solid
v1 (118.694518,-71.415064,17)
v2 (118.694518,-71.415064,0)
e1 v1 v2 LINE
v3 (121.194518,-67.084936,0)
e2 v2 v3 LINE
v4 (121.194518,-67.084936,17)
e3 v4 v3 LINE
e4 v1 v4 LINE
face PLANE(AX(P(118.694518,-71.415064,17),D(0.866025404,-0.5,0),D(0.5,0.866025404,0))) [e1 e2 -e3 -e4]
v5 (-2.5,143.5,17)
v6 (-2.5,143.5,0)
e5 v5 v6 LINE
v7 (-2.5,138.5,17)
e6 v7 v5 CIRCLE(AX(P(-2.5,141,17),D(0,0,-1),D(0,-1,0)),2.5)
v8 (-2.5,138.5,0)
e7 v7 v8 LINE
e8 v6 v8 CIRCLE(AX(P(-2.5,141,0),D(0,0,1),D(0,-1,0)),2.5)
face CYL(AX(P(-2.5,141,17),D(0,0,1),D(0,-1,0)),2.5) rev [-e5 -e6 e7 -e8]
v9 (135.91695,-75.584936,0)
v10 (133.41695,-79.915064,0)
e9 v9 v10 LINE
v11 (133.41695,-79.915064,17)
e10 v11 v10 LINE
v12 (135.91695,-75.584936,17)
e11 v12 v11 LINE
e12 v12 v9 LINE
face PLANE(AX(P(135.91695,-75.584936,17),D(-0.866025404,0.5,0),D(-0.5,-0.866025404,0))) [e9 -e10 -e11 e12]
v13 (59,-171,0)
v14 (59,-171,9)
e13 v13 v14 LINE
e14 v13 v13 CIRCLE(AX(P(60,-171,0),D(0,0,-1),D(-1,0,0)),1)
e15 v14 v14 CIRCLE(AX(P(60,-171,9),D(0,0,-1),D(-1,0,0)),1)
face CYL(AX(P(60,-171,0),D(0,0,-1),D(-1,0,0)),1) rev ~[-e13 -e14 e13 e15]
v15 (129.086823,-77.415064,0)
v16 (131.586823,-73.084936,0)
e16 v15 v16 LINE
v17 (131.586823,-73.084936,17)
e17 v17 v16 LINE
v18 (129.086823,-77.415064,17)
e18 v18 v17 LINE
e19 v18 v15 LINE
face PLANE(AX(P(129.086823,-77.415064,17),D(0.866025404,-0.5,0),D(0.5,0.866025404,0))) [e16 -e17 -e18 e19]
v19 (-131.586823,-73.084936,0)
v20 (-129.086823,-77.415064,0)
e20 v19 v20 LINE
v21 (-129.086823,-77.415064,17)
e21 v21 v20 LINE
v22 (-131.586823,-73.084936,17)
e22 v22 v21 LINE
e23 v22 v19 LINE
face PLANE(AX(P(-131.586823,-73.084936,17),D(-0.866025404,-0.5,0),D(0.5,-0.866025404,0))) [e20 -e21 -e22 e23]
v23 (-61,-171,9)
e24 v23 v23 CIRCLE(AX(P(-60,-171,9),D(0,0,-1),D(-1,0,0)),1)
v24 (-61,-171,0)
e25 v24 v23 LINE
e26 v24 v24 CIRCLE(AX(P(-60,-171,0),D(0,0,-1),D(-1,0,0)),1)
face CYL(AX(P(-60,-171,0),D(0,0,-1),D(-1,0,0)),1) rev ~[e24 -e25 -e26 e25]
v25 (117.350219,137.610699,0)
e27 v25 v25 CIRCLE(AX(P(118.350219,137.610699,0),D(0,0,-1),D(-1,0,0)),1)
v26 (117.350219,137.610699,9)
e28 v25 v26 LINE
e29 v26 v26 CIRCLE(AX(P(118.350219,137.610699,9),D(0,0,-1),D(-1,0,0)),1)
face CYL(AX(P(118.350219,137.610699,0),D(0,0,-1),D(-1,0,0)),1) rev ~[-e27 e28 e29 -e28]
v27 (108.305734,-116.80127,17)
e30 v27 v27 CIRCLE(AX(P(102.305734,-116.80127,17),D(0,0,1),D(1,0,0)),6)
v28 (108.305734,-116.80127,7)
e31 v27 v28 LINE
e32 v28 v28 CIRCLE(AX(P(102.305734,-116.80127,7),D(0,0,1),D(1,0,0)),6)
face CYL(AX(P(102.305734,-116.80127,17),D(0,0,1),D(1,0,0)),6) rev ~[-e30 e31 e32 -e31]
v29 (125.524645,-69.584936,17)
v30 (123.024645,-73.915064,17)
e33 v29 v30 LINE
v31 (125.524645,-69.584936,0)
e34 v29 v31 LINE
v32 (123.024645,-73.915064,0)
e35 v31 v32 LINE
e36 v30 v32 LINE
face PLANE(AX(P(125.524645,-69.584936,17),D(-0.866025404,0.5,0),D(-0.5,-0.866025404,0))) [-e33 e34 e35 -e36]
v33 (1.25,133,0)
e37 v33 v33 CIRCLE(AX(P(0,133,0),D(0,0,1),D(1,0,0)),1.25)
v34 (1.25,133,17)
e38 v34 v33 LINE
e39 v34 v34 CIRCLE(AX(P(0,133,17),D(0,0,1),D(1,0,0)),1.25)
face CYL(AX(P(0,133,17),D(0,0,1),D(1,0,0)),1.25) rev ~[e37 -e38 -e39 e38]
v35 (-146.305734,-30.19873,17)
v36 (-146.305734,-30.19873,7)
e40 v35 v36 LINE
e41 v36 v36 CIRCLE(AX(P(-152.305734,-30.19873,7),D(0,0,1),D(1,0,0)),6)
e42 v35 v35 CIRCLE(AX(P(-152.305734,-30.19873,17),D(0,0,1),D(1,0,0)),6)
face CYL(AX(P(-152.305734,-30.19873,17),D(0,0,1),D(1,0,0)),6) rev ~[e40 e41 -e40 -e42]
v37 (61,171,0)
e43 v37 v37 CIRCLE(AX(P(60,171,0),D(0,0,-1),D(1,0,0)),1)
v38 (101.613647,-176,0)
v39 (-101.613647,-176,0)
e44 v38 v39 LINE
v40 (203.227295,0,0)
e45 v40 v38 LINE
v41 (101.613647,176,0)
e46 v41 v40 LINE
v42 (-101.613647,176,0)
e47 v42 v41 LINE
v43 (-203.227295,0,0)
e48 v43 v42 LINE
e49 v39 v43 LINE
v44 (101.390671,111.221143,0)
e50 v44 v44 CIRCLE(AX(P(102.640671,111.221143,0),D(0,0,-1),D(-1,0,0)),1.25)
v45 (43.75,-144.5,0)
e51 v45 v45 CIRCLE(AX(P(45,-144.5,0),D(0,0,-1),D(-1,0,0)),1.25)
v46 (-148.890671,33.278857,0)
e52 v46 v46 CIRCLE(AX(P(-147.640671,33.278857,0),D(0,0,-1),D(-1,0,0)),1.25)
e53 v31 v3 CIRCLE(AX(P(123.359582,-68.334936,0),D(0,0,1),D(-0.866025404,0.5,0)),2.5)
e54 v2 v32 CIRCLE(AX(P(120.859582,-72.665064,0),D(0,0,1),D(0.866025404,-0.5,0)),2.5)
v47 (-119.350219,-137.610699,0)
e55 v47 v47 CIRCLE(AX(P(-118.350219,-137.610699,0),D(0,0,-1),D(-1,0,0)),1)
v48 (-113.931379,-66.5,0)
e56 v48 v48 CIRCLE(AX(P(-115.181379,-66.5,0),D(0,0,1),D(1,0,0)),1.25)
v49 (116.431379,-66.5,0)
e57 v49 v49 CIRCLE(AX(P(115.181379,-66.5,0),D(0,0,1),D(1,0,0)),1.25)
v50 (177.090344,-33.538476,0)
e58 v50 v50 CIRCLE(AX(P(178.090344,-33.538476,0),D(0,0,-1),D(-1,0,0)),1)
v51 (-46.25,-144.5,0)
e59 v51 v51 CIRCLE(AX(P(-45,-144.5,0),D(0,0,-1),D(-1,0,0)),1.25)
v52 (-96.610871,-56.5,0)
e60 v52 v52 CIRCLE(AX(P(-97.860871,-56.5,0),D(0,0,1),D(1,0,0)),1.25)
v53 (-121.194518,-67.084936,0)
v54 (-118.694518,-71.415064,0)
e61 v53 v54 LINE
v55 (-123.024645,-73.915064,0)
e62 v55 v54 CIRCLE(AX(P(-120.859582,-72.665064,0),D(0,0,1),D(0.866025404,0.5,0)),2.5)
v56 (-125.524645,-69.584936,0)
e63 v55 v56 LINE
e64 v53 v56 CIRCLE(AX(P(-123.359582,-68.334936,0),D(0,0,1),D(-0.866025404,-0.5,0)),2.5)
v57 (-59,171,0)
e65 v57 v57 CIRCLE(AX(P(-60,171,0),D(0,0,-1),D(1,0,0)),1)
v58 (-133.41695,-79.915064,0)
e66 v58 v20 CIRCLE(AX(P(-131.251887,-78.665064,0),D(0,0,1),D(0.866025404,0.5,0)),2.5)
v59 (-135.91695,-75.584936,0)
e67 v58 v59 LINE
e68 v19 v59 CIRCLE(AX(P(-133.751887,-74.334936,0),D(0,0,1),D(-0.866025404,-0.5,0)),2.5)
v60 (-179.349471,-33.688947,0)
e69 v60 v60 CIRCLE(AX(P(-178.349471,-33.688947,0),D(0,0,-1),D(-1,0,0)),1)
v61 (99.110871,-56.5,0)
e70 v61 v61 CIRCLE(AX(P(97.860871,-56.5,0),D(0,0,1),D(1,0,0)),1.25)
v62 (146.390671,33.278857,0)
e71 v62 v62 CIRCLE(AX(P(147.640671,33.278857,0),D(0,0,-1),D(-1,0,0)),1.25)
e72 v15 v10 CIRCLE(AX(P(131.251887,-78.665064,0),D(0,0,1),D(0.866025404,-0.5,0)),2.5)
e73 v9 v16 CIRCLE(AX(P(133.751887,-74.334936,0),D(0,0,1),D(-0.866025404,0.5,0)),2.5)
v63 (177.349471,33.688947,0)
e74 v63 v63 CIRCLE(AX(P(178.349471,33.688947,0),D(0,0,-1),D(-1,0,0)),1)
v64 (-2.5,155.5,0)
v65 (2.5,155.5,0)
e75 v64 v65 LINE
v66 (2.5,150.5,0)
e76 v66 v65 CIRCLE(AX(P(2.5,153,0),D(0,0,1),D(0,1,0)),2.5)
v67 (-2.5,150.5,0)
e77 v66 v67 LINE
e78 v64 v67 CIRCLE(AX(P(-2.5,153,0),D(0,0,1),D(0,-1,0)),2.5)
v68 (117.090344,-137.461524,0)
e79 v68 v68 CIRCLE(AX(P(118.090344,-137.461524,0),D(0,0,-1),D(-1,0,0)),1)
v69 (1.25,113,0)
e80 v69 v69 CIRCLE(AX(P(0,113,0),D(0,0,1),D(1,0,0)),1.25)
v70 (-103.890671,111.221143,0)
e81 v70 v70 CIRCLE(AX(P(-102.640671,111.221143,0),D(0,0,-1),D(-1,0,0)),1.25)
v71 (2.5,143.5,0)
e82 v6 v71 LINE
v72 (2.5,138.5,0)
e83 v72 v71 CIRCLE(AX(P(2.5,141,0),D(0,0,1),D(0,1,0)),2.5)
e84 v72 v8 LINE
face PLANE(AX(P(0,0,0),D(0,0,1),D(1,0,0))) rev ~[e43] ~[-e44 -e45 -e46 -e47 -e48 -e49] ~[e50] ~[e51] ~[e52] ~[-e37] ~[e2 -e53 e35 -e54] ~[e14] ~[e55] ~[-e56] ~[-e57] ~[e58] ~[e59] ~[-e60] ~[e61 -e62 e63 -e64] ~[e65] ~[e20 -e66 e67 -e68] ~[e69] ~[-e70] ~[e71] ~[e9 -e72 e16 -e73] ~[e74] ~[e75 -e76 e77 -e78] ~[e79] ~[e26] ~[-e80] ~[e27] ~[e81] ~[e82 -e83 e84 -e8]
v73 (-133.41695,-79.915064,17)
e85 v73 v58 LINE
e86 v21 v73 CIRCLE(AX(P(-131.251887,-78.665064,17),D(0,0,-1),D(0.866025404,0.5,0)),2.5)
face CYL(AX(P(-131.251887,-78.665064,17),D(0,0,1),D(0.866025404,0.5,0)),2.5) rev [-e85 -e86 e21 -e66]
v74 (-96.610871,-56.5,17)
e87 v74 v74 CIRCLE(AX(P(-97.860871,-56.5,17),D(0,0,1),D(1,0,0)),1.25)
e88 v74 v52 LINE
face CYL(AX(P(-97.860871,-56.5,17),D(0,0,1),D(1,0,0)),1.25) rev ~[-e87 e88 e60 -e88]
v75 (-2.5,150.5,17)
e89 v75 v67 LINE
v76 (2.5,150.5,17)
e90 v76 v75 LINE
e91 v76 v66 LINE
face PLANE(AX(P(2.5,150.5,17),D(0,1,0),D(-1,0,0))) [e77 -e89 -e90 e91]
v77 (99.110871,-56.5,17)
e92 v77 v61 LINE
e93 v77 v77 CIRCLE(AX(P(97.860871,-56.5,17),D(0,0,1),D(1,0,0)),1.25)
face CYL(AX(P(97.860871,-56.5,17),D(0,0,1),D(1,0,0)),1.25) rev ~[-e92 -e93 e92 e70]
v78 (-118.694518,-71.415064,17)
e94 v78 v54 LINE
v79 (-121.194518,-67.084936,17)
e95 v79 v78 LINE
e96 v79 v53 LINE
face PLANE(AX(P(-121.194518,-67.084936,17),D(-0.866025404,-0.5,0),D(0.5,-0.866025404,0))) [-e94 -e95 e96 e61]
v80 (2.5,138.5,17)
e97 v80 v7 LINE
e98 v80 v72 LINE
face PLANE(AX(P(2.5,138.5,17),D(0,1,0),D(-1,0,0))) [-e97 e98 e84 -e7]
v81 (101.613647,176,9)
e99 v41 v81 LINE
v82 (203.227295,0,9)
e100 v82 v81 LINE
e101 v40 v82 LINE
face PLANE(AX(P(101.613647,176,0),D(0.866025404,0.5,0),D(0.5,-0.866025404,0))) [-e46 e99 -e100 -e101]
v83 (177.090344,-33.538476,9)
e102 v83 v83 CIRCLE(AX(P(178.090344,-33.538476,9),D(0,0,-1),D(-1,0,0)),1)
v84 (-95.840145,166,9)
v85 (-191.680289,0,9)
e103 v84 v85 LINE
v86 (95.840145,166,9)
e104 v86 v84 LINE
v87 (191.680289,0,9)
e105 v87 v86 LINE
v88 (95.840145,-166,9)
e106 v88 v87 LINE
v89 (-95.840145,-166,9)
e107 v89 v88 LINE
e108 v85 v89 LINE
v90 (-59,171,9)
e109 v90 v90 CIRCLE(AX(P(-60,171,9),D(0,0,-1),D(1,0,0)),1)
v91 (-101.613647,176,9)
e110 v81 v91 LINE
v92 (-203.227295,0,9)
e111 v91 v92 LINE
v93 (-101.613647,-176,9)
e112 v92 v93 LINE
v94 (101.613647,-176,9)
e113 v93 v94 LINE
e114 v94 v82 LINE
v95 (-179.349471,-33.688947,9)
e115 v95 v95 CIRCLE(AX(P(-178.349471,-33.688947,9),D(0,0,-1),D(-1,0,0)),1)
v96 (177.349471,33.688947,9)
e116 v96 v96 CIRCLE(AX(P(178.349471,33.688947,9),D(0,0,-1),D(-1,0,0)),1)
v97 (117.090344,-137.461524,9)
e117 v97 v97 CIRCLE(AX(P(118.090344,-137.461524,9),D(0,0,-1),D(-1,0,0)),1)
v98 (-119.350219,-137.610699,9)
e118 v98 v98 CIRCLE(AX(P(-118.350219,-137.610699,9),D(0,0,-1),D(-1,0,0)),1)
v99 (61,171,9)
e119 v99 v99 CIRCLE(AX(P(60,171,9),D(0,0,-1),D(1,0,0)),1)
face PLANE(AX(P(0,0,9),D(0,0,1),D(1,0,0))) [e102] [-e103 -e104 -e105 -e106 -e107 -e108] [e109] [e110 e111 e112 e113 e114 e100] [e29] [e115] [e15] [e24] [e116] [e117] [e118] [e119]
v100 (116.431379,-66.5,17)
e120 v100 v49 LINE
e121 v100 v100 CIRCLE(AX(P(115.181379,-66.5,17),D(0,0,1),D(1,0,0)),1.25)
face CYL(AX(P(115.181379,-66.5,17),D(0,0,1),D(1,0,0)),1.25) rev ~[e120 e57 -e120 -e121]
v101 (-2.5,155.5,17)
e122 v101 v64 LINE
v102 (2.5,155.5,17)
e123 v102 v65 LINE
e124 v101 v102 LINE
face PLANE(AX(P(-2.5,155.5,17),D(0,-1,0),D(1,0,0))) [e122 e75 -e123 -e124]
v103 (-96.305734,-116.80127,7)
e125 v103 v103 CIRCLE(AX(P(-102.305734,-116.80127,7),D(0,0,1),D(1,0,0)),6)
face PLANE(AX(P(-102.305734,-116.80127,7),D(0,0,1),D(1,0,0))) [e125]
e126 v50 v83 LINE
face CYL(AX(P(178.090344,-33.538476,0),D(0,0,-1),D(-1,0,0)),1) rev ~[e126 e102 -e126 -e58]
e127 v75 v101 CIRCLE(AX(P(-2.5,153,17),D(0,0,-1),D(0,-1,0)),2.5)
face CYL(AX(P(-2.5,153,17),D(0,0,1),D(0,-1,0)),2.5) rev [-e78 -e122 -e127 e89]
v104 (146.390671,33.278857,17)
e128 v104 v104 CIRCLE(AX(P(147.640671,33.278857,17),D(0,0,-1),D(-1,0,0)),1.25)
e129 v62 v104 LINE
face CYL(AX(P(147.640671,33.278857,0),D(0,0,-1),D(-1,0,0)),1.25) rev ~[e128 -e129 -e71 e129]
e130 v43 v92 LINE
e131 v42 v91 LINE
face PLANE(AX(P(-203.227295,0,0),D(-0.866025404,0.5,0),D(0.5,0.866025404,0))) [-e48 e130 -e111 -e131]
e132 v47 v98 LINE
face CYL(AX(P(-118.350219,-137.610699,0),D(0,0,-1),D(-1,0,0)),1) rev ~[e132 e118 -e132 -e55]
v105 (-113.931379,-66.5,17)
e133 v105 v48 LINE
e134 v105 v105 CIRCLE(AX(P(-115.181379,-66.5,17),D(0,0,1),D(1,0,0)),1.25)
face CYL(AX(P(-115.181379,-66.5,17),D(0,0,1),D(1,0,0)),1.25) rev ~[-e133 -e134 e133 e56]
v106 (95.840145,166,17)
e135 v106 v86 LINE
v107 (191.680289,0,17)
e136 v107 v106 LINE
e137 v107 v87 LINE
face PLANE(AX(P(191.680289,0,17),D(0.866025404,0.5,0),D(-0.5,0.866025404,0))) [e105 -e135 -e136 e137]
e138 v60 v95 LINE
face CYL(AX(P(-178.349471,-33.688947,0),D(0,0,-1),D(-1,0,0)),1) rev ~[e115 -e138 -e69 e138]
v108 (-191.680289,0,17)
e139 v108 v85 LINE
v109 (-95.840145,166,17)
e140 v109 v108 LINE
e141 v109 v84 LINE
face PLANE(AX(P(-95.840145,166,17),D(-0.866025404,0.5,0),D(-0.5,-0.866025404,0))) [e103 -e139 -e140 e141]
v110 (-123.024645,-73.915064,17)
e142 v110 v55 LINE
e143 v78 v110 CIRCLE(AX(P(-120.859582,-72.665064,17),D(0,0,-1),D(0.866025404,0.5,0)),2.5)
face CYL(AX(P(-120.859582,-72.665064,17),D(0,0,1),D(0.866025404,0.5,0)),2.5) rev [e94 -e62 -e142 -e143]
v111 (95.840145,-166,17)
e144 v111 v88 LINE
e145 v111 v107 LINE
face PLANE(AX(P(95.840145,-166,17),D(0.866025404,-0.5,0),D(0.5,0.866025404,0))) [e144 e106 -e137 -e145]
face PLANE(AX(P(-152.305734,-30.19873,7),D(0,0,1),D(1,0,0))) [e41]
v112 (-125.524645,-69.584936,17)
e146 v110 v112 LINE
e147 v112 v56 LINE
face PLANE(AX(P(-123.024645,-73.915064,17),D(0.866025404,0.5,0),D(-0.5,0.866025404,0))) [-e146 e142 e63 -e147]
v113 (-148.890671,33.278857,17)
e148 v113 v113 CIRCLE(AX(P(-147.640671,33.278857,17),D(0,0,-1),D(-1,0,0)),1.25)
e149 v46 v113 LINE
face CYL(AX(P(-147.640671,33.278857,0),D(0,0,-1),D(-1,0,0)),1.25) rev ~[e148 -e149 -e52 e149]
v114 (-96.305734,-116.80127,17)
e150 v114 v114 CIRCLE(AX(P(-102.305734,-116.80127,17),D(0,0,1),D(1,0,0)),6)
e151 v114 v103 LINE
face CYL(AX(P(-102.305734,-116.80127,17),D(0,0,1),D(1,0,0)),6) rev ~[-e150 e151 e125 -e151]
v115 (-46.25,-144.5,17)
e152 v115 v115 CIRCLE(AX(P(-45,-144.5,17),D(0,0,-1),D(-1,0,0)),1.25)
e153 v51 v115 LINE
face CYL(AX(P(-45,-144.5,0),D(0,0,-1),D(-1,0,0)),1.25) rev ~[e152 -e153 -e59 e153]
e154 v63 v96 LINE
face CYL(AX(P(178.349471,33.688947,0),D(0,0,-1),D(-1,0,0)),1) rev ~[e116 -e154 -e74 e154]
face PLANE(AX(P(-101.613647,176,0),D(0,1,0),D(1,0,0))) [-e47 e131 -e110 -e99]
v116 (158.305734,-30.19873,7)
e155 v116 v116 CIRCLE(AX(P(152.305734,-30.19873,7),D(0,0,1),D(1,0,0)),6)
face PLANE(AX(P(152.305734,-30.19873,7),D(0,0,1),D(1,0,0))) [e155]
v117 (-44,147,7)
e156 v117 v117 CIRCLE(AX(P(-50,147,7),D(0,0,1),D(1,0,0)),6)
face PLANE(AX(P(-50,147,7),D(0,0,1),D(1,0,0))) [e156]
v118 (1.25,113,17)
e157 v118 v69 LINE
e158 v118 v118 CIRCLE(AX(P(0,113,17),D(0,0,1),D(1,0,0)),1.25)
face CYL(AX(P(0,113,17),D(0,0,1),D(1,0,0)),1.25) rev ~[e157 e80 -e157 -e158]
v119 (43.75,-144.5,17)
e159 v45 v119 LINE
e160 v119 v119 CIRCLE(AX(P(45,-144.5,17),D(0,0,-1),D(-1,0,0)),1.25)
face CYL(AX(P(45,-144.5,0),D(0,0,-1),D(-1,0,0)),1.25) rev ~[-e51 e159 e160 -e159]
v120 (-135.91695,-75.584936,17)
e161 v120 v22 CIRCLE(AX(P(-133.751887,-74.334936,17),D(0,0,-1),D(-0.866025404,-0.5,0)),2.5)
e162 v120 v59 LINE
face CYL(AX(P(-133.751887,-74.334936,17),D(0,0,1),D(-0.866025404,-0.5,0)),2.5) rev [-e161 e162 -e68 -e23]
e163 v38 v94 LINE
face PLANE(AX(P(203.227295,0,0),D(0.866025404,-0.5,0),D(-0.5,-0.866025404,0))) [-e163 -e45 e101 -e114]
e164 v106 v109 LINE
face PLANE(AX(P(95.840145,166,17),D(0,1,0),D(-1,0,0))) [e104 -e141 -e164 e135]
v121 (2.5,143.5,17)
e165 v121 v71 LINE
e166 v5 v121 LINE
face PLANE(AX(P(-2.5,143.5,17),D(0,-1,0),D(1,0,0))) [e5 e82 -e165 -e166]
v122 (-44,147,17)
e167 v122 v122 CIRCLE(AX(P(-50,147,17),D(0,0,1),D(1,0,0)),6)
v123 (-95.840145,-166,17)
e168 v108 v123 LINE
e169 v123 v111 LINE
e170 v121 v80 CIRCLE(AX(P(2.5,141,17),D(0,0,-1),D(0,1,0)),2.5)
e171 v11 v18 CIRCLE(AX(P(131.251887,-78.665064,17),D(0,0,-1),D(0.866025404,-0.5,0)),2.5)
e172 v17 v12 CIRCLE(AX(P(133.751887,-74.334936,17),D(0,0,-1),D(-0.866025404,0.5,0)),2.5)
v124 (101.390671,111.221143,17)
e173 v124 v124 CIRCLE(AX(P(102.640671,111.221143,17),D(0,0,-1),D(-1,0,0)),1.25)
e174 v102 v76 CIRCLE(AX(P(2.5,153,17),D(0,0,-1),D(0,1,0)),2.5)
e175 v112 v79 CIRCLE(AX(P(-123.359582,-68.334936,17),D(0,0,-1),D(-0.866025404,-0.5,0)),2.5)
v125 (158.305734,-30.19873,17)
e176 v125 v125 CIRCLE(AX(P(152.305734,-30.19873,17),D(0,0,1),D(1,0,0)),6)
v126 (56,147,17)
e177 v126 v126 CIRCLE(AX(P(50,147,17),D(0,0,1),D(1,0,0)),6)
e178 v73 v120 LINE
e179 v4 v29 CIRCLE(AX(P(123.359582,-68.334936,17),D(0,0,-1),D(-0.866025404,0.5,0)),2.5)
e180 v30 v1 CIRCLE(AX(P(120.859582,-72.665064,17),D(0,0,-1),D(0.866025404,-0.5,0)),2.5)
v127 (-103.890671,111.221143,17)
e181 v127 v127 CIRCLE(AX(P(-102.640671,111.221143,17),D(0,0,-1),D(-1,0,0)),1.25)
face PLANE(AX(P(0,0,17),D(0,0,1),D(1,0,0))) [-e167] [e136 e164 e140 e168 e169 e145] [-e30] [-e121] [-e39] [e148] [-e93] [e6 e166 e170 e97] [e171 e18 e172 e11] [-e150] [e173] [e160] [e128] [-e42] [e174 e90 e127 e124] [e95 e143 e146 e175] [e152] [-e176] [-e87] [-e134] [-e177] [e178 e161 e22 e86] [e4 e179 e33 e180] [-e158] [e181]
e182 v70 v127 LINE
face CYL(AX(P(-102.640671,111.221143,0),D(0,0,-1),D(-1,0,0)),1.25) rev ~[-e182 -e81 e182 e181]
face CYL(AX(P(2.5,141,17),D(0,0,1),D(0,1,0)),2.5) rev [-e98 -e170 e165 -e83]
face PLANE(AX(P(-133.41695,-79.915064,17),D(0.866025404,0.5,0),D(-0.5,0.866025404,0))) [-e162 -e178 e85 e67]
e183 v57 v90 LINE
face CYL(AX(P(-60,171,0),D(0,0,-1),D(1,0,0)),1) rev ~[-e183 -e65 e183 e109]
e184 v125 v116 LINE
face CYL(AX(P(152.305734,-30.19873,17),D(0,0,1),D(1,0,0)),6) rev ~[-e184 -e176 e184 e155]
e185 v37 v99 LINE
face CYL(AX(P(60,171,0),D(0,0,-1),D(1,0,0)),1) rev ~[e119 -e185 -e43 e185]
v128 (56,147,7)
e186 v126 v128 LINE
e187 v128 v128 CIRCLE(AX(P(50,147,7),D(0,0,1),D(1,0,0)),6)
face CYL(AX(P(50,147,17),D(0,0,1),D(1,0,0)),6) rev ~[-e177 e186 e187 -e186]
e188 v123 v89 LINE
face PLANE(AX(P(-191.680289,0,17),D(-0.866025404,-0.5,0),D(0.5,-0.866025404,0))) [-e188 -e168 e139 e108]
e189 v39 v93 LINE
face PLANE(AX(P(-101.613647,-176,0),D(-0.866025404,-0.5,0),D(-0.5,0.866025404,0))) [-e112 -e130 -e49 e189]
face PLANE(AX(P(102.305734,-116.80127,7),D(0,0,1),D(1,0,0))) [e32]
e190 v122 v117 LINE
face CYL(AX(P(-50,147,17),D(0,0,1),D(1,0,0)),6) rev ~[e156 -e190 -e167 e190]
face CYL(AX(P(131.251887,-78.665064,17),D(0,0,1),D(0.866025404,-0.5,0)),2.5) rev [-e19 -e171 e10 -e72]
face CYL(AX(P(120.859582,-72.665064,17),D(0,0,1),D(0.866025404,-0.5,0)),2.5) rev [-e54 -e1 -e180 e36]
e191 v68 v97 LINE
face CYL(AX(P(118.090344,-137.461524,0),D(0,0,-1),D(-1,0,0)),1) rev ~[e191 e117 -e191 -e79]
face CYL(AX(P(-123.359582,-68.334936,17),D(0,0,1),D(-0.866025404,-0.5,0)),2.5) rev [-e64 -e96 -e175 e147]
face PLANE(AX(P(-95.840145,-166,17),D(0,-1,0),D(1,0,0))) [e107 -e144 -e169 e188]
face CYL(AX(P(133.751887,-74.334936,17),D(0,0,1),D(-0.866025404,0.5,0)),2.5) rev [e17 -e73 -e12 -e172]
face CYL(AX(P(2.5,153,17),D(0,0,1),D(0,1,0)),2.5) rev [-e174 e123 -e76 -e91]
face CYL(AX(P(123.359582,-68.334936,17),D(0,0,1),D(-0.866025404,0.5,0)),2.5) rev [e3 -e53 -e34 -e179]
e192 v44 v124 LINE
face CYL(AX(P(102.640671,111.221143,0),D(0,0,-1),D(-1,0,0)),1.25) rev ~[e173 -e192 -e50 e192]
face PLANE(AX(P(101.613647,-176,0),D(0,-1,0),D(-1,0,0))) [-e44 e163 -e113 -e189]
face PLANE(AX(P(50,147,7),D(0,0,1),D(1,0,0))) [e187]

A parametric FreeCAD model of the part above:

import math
import FreeCAD as App
import Part
import Sketcher

V = App.Vector
Q = App.Units.Quantity


def add_polygon(sketch, points):
    """Adds a closed chain of lines whose ends are joined by coincident constraints."""
    first, n = sketch.GeometryCount, len(points)
    for a, b in zip(points, points[1:] + points[:1]):
        sketch.addGeometry(Part.LineSegment(App.Vector(*a, 0), App.Vector(*b, 0)), False)
    for i in range(n):
        sketch.addConstraint(Sketcher.Constraint("Coincident", first + i, 2, first + (i + 1) % n, 1))

doc = App.newDocument("Part")
params = doc.addObject("Spreadsheet::Sheet", "Params")
for row, (alias, value) in enumerate([
    ("pad1_length", "17 mm"),
    ("sketch2_diameter", "12 mm"),
    ("pocket1_length", "10 mm"),
    ("pocket2_length", "8 mm"),
    ("sketch4_diameter", "2.5 mm"),
    ("sketch4_radius", "2.5 mm"),
    ("sketch4_width", "5 mm"),
    ("sketch4_length", "5 mm"),
    ("sketch5_diameter", "2.5 mm"),
    ("sketch7_diameter", "2 mm"),
], start=1):
    params.set(f"A{row}", alias)
    params.set(f"B{row}", "=" + value)
    params.setAlias(f"B{row}", alias)

body = doc.addObject("PartDesign::Body", "Body")

# Sketch on XY plane
sketch1 = body.newObject("Sketcher::SketchObject", "Sketch")
sketch1.AttachmentSupport = (doc.getObject("XY_Plane"), [""])
sketch1.MapMode = "FlatFace"
add_polygon(sketch1, [(106, 183), (-106, 183), (-211, 0), (-106, -183), (106, -183), (211, 0)])  # lines 0-5
sketch1.addConstraint(Sketcher.Constraint("Horizontal", 0))
sketch1.addConstraint(Sketcher.Constraint("Horizontal", 3))
sketch1.addConstraint(Sketcher.Constraint("Symmetric", 0, 2, 3, 2, -1, 1))
sketch1.addConstraint(Sketcher.Constraint("Symmetric", 1, 2, 4, 2, -1, 1))
sketch1.addConstraint(Sketcher.Constraint("PointOnObject", 1, 2, -1))
sketch1.addConstraint(Sketcher.Constraint("Parallel", 2, 5))
sketch1.addConstraint(Sketcher.Constraint("Vertical", 0, 2, 2, 2))
sketch1.addConstraint(Sketcher.Constraint("Angle", 1, Q("-120 deg")))
sketch1.addConstraint(Sketcher.Constraint("DistanceY", -1, 1, 0, 2, 183.0))
sketch1.addConstraint(Sketcher.Constraint("DistanceX", 0, 2, 0, 1, 211.310199))
pad1 = body.newObject("PartDesign::Pad", "Pad")
pad1.Profile = sketch1
pad1.setExpression("Length", "Params.pad1_length")

# Sketch on XY plane
sketch2 = body.newObject("Sketcher::SketchObject", "Sketch001")
sketch2.AttachmentSupport = (doc.getObject("XY_Plane"), [""])
sketch2.MapMode = "FlatFace"
sketch2.AttachmentOffset = App.Placement(V(0, 0, 17), App.Rotation())
sketch2.addGeometry(Part.Circle(V(50, 147, 0), V(0, 0, 1), 6), False)
sketch2.addGeometry(Part.Circle(V(-50, 147, 0), V(0, 0, 1), 6), False)
sketch2.addGeometry(Part.Circle(V(-152, -30, 0), V(0, 0, 1), 6), False)
sketch2.addGeometry(Part.Circle(V(-102, -117, 0), V(0, 0, 1), 6), False)
sketch2.addGeometry(Part.Circle(V(102, -117, 0), V(0, 0, 1), 6), False)
sketch2.addGeometry(Part.Circle(V(152, -30, 0), V(0, 0, 1), 6), False)
sketch2.addConstraint(Sketcher.Constraint("Equal", 0, 1))
sketch2.addConstraint(Sketcher.Constraint("Equal", 1, 2))
sketch2.addConstraint(Sketcher.Constraint("Equal", 2, 3))
sketch2.addConstraint(Sketcher.Constraint("Equal", 3, 4))
sketch2.addConstraint(Sketcher.Constraint("Equal", 4, 5))
sketch2.addConstraint(Sketcher.Constraint("Symmetric", 0, 3, 1, 3, -2))
sketch2.addConstraint(Sketcher.Constraint("Symmetric", 3, 3, 4, 3, -2))
sketch2.addConstraint(Sketcher.Constraint("Symmetric", 2, 3, 5, 3, -2))
sketch2.addConstraint(Sketcher.Constraint("Diameter", 0, 12.0))
sketch2.addConstraint(Sketcher.Constraint("DistanceX", -1, 1, 0, 3, 50.0))
sketch2.addConstraint(Sketcher.Constraint("DistanceY", -1, 1, 0, 3, 147.0))
sketch2.addConstraint(Sketcher.Constraint("DistanceX", 2, 3, 3, 3, 50.0))
sketch2.addConstraint(Sketcher.Constraint("DistanceY", 2, 3, -1, 1, 30.19873))
sketch2.addConstraint(Sketcher.Constraint("DistanceY", 3, 3, -1, 1, 116.80127))
sketch2.addConstraint(Sketcher.Constraint("DistanceX", 3, 3, 4, 3, 204.611469))
sketch2.setExpression("Constraints[8]", "Params.sketch2_diameter")
pocket1 = body.newObject("PartDesign::Pocket", "Pocket")
pocket1.Profile = sketch2
pocket1.setExpression("Length", "Params.pocket1_length")

# Sketch on XY plane
sketch3 = body.newObject("Sketcher::SketchObject", "Sketch002")
sketch3.AttachmentSupport = (doc.getObject("XY_Plane"), [""])
sketch3.MapMode = "FlatFace"
sketch3.AttachmentOffset = App.Placement(V(0, 0, 17), App.Rotation())
add_polygon(sketch3, [(-268, 240), (-268, -240), (268, -240), (268, 240)])  # lines 0-3
add_polygon(sketch3, [(96, 166), (192, 0), (96, -166), (-96, -166), (-192, 0), (-96, 166)])  # lines 4-9
sketch3.addConstraint(Sketcher.Constraint("Vertical", 0))
sketch3.addConstraint(Sketcher.Constraint("Horizontal", 1))
sketch3.addConstraint(Sketcher.Constraint("Vertical", 2))
sketch3.addConstraint(Sketcher.Constraint("Horizontal", 3))
sketch3.addConstraint(Sketcher.Constraint("Horizontal", 6))
sketch3.addConstraint(Sketcher.Constraint("Horizontal", 9))
sketch3.addConstraint(Sketcher.Constraint("Symmetric", 0, 2, 2, 2, -1, 1))
sketch3.addConstraint(Sketcher.Constraint("Symmetric", 4, 2, 7, 2, -1, 1))
sketch3.addConstraint(Sketcher.Constraint("Symmetric", 5, 2, 8, 2, -1, 1))
sketch3.addConstraint(Sketcher.Constraint("PointOnObject", 4, 2, -1))
sketch3.addConstraint(Sketcher.Constraint("Parallel", 4, 7))
sketch3.addConstraint(Sketcher.Constraint("Vertical", 6, 2, 8, 2))
sketch3.addConstraint(Sketcher.Constraint("Angle", 4, Q("-60 deg")))
sketch3.addConstraint(Sketcher.Constraint("DistanceY", 5, 2, -1, 1, 166.0))
sketch3.addConstraint(Sketcher.Constraint("DistanceX", 1, 1, 1, 2, 536.486))
sketch3.addConstraint(Sketcher.Constraint("DistanceY", 0, 2, 0, 1, 479.866))
sketch3.addConstraint(Sketcher.Constraint("DistanceX", 6, 2, 6, 1, 191.680289))
pocket2 = body.newObject("PartDesign::Pocket", "Pocket001")
pocket2.Profile = sketch3
pocket2.setExpression("Length", "Params.pocket2_length")

# Sketch on XY plane
sketch4 = body.newObject("Sketcher::SketchObject", "Sketch003")
sketch4.AttachmentSupport = (doc.getObject("XY_Plane"), [""])
sketch4.MapMode = "FlatFace"
sketch4.AttachmentOffset = App.Placement(V(0, 0, 17), App.Rotation())
sketch4.addGeometry(Part.Circle(V(115.2, -66.5, 0), V(0, 0, 1), 1.2), False)
sketch4.addGeometry(Part.Circle(V(97.9, -56.5, 0), V(0, 0, 1), 1.2), False)
sketch4.addGeometry(Part.Circle(V(-115.2, -66.5, 0), V(0, 0, 1), 1.2), False)
sketch4.addGeometry(Part.Circle(V(-97.9, -56.5, 0), V(0, 0, 1), 1.2), False)
sketch4.addGeometry(Part.Circle(V(0, 133, 0), V(0, 0, 1), 1.2), False)
sketch4.addGeometry(Part.Circle(V(0, 113, 0), V(0, 0, 1), 1.2), False)
sketch4.addGeometry(Part.LineSegment(V(-118.7, -71.4, 0), V(-121.2, -67.1, 0)), False)
sketch4.addGeometry(Part.ArcOfCircle(Part.Circle(V(-123.4, -68.3, 0), V(0, 0, 1), 2.5), math.radians(30), math.radians(210)), False)
sketch4.addGeometry(Part.LineSegment(V(-125.5, -69.6, 0), V(-123, -73.9, 0)), False)
sketch4.addGeometry(Part.ArcOfCircle(Part.Circle(V(-120.9, -72.7, 0), V(0, 0, 1), 2.5), math.radians(-150), math.radians(30)), False)
sketch4.addGeometry(Part.LineSegment(V(-129.1, -77.4, 0), V(-131.6, -73.1, 0)), False)
sketch4.addGeometry(Part.ArcOfCircle(Part.Circle(V(-133.8, -74.3, 0), V(0, 0, 1), 2.5), math.radians(30), math.radians(210)), False)
sketch4.addGeometry(Part.LineSegment(V(-135.9, -75.6, 0), V(-133.4, -79.9, 0)), False)
sketch4.addGeometry(Part.ArcOfCircle(Part.Circle(V(-131.3, -78.7, 0), V(0, 0, 1), 2.5), math.radians(-150), math.radians(30)), False)
sketch4.addGeometry(Part.LineSegment(V(121.2, -67.1, 0), V(118.7, -71.4, 0)), False)
sketch4.addGeometry(Part.ArcOfCircle(Part.Circle(V(120.9, -72.7, 0), V(0, 0, 1), 2.5), math.radians(150), math.radians(330)), False)
sketch4.addGeometry(Part.LineSegment(V(123, -73.9, 0), V(125.5, -69.6, 0)), False)
sketch4.addGeometry(Part.ArcOfCircle(Part.Circle(V(123.4, -68.3, 0), V(0, 0, 1), 2.5), math.radians(-30), math.radians(150)), False)
sketch4.addGeometry(Part.LineSegment(V(131.6, -73.1, 0), V(129.1, -77.4, 0)), False)
sketch4.addGeometry(Part.ArcOfCircle(Part.Circle(V(131.3, -78.7, 0), V(0, 0, 1), 2.5), math.radians(150), math.radians(330)), False)
sketch4.addGeometry(Part.LineSegment(V(133.4, -79.9, 0), V(135.9, -75.6, 0)), False)
sketch4.addGeometry(Part.ArcOfCircle(Part.Circle(V(133.8, -74.3, 0), V(0, 0, 1), 2.5), math.radians(-30), math.radians(150)), False)
sketch4.addGeometry(Part.LineSegment(V(-2.5, 138.5, 0), V(2.5, 138.5, 0)), False)
sketch4.addGeometry(Part.ArcOfCircle(Part.Circle(V(2.5, 141, 0), V(0, 0, 1), 2.5), math.radians(-90), math.radians(90)), False)
sketch4.addGeometry(Part.LineSegment(V(2.5, 143.5, 0), V(-2.5, 143.5, 0)), False)
sketch4.addGeometry(Part.ArcOfCircle(Part.Circle(V(-2.5, 141, 0), V(0, 0, 1), 2.5), math.radians(90), math.radians(270)), False)
sketch4.addGeometry(Part.LineSegment(V(-2.5, 150.5, 0), V(2.5, 150.5, 0)), False)
sketch4.addGeometry(Part.ArcOfCircle(Part.Circle(V(2.5, 153, 0), V(0, 0, 1), 2.5), math.radians(-90), math.radians(90)), False)
sketch4.addGeometry(Part.LineSegment(V(2.5, 155.5, 0), V(-2.5, 155.5, 0)), False)
sketch4.addGeometry(Part.ArcOfCircle(Part.Circle(V(-2.5, 153, 0), V(0, 0, 1), 2.5), math.radians(90), math.radians(270)), False)
sketch4.addConstraint(Sketcher.Constraint("Tangent", 6, 2, 7, 1))
sketch4.addConstraint(Sketcher.Constraint("Tangent", 7, 2, 8, 1))
sketch4.addConstraint(Sketcher.Constraint("Tangent", 8, 2, 9, 1))
sketch4.addConstraint(Sketcher.Constraint("Tangent", 9, 2, 6, 1))
sketch4.addConstraint(Sketcher.Constraint("Tangent", 10, 2, 11, 1))
sketch4.addConstraint(Sketcher.Constraint("Tangent", 11, 2, 12, 1))
sketch4.addConstraint(Sketcher.Constraint("Tangent", 12, 2, 13, 1))
sketch4.addConstraint(Sketcher.Constraint("Tangent", 13, 2, 10, 1))
sketch4.addConstraint(Sketcher.Constraint("Tangent", 14, 2, 15, 1))
sketch4.addConstraint(Sketcher.Constraint("Tangent", 15, 2, 16, 1))
sketch4.addConstraint(Sketcher.Constraint("Tangent", 16, 2, 17, 1))
sketch4.addConstraint(Sketcher.Constraint("Tangent", 17, 2, 14, 1))
sketch4.addConstraint(Sketcher.Constraint("Tangent", 18, 2, 19, 1))
sketch4.addConstraint(Sketcher.Constraint("Tangent", 19, 2, 20, 1))
sketch4.addConstraint(Sketcher.Constraint("Tangent", 20, 2, 21, 1))
sketch4.addConstraint(Sketcher.Constraint("Tangent", 21, 2, 18, 1))
sketch4.addConstraint(Sketcher.Constraint("Tangent", 22, 2, 23, 1))
sketch4.addConstraint(Sketcher.Constraint("Tangent", 23, 2, 24, 1))
sketch4.addConstraint(Sketcher.Constraint("Tangent", 24, 2, 25, 1))
sketch4.addConstraint(Sketcher.Constraint("Tangent", 25, 2, 22, 1))
sketch4.addConstraint(Sketcher.Constraint("Tangent", 26, 2, 27, 1))
sketch4.addConstraint(Sketcher.Constraint("Tangent", 27, 2, 28, 1))
sketch4.addConstraint(Sketcher.Constraint("Tangent", 28, 2, 29, 1))
sketch4.addConstraint(Sketcher.Constraint("Tangent", 29, 2, 26, 1))
sketch4.addConstraint(Sketcher.Constraint("Horizontal", 22))
sketch4.addConstraint(Sketcher.Constraint("Horizontal", 24))
sketch4.addConstraint(Sketcher.Constraint("Horizontal", 26))
sketch4.addConstraint(Sketcher.Constraint("Horizontal", 28))
sketch4.addConstraint(Sketcher.Constraint("Equal", 0, 1))
sketch4.addConstraint(Sketcher.Constraint("Equal", 1, 2))
sketch4.addConstraint(Sketcher.Constraint("Equal", 2, 3))
sketch4.addConstraint(Sketcher.Constraint("Equal", 3, 4))
sketch4.addConstraint(Sketcher.Constraint("Equal", 4, 5))
sketch4.addConstraint(Sketcher.Constraint("Equal", 7, 9))
sketch4.addConstraint(Sketcher.Constraint("Equal", 9, 11))
sketch4.addConstraint(Sketcher.Constraint("Equal", 11, 13))
sketch4.addConstraint(Sketcher.Constraint("Equal", 13, 15))
sketch4.addConstraint(Sketcher.Constraint("Equal", 15, 17))
sketch4.addConstraint(Sketcher.Constraint("Equal", 17, 19))
sketch4.addConstraint(Sketcher.Constraint("Equal", 19, 21))
sketch4.addConstraint(Sketcher.Constraint("Equal", 21, 23))
sketch4.addConstraint(Sketcher.Constraint("Equal", 25, 27))
sketch4.addConstraint(Sketcher.Constraint("Symmetric", 0, 3, 2, 3, -2))
sketch4.addConstraint(Sketcher.Constraint("Symmetric", 1, 3, 3, 3, -2))
sketch4.addConstraint(Sketcher.Constraint("Symmetric", 9, 3, 15, 3, -2))
sketch4.addConstraint(Sketcher.Constraint("Symmetric", 7, 3, 17, 3, -2))
sketch4.addConstraint(Sketcher.Constraint("Symmetric", 13, 3, 19, 3, -2))
sketch4.addConstraint(Sketcher.Constraint("Symmetric", 11, 3, 21, 3, -2))
sketch4.addConstraint(Sketcher.Constraint("PointOnObject", 4, 3, -2))
sketch4.addConstraint(Sketcher.Constraint("PointOnObject", 5, 3, -2))
sketch4.addConstraint(Sketcher.Constraint("Parallel", 8, 10))
sketch4.addConstraint(Sketcher.Constraint("Vertical", 23, 3, 27, 3))
sketch4.addConstraint(Sketcher.Constraint("Vertical", 25, 3, 29, 3))
sketch4.addConstraint(Sketcher.Constraint("Equal", 8, 10))
sketch4.addConstraint(Sketcher.Constraint("Diameter", 0, 2.5))
sketch4.addConstraint(Sketcher.Constraint("Radius", 7, 2.5))
sketch4.addConstraint(Sketcher.Constraint("DistanceX", 22, 1, 22, 2, 5.0))
sketch4.addConstraint(Sketcher.Constraint("Angle", 6, Q("120 deg")))
sketch4.addConstraint(Sketcher.Constraint("Distance", 6, 5.0))
sketch4.addConstraint(Sketcher.Constraint("DistanceY", -1, 1, 4, 3, 133.0))
sketch4.addConstraint(Sketcher.Constraint("DistanceY", -1, 1, 5, 3, 113.0))
sketch4.addConstraint(Sketcher.Constraint("DistanceY", -1, 1, 23, 3, 141.0))
sketch4.addConstraint(Sketcher.Constraint("DistanceY", -1, 1, 27, 3, 153.0))
sketch4.addConstraint(Sketcher.Constraint("DistanceY", 0, 3, 1, 3, 10.0))
sketch4.addConstraint(Sketcher.Constraint("DistanceY", 11, 3, 7, 3, 6.0))
sketch4.addConstraint(Sketcher.Constraint("DistanceY", 0, 3, -1, 1, 66.5))
sketch4.addConstraint(Sketcher.Constraint("DistanceX", -1, 1, 23, 3, 2.5))
sketch4.addConstraint(Sketcher.Constraint("DistanceX", -1, 1, 0, 3, 115.181379))
sketch4.addConstraint(Sketcher.Constraint("DistanceX", -1, 1, 1, 3, 97.860871))
sketch4.addConstraint(Sketcher.Constraint("DistanceX", 7, 3, -1, 1, 123.359582))
sketch4.addConstraint(Sketcher.Constraint("DistanceX", 11, 2, -1, 1, 135.91695))
sketch4.addConstraint(Sketcher.Constraint("DistanceY", 7, 3, -1, 1, 68.334936))
sketch4.setExpression("Constraints[54]", "Params.sketch4_diameter")
sketch4.setExpression("Constraints[55]", "Params.sketch4_radius")
sketch4.setExpression("Constraints[56]", "Params.sketch4_width")
sketch4.setExpression("Constraints[58]", "Params.sketch4_length")
pocket3 = body.newObject("PartDesign::Pocket", "Pocket002")
pocket3.Profile = sketch4
pocket3.Type = "ThroughAll"

# Sketch on XY plane
sketch5 = body.newObject("Sketcher::SketchObject", "Sketch004")
sketch5.AttachmentSupport = (doc.getObject("XY_Plane"), [""])
sketch5.MapMode = "FlatFace"
sketch5.addGeometry(Part.Circle(V(-147.6, 33.3, 0), V(0, 0, 1), 1.2), False)
sketch5.addGeometry(Part.Circle(V(-102.6, 111.2, 0), V(0, 0, 1), 1.2), False)
sketch5.addGeometry(Part.Circle(V(-45, -144.5, 0), V(0, 0, 1), 1.2), False)
sketch5.addGeometry(Part.Circle(V(45, -144.5, 0), V(0, 0, 1), 1.2), False)
sketch5.addGeometry(Part.Circle(V(147.6, 33.3, 0), V(0, 0, 1), 1.2), False)
sketch5.addGeometry(Part.Circle(V(102.6, 111.2, 0), V(0, 0, 1), 1.2), False)
sketch5.addConstraint(Sketcher.Constraint("Equal", 0, 1))
sketch5.addConstraint(Sketcher.Constraint("Equal", 1, 2))
sketch5.addConstraint(Sketcher.Constraint("Equal", 2, 3))
sketch5.addConstraint(Sketcher.Constraint("Equal", 3, 4))
sketch5.addConstraint(Sketcher.Constraint("Equal", 4, 5))
sketch5.addConstraint(Sketcher.Constraint("Symmetric", 2, 3, 3, 3, -2))
sketch5.addConstraint(Sketcher.Constraint("Symmetric", 0, 3, 4, 3, -2))
sketch5.addConstraint(Sketcher.Constraint("Symmetric", 1, 3, 5, 3, -2))
sketch5.addConstraint(Sketcher.Constraint("Diameter", 0, 2.5))
sketch5.addConstraint(Sketcher.Constraint("DistanceX", 2, 3, -1, 1, 45.0))
sketch5.addConstraint(Sketcher.Constraint("DistanceX", 0, 3, 1, 3, 45.0))
sketch5.addConstraint(Sketcher.Constraint("DistanceY", 2, 3, -1, 1, 144.5))
sketch5.addConstraint(Sketcher.Constraint("DistanceX", 0, 3, -1, 1, 147.640671))
sketch5.addConstraint(Sketcher.Constraint("DistanceY", -1, 1, 0, 3, 33.278857))
sketch5.addConstraint(Sketcher.Constraint("DistanceY", -1, 1, 1, 3, 111.221143))
sketch5.setExpression("Constraints[8]", "Params.sketch5_diameter")
pocket4 = body.newObject("PartDesign::Pocket", "Pocket003")
pocket4.Profile = sketch5
pocket4.Type = "ThroughAll"
pocket4.Reversed = True

# Sketch on XY plane
sketch6 = body.newObject("Sketcher::SketchObject", "Sketch005")
sketch6.AttachmentSupport = (doc.getObject("XY_Plane"), [""])
sketch6.MapMode = "FlatFace"
add_polygon(sketch6, [(-106, 183), (106, 183), (211, 0), (106, -183), (-106, -183), (-211, 0)])  # lines 0-5
add_polygon(sketch6, [(102, 176), (-102, 176), (-203, 0), (-102, -176), (102, -176), (203, 0)])  # lines 6-11
sketch6.addConstraint(Sketcher.Constraint("Horizontal", 0))
sketch6.addConstraint(Sketcher.Constraint("Horizontal", 3))
sketch6.addConstraint(Sketcher.Constraint("Horizontal", 6))
sketch6.addConstraint(Sketcher.Constraint("Horizontal", 9))
sketch6.addConstraint(Sketcher.Constraint("Symmetric", 0, 2, 3, 2, -1, 1))
sketch6.addConstraint(Sketcher.Constraint("Symmetric", 1, 2, 4, 2, -1, 1))
sketch6.addConstraint(Sketcher.Constraint("Symmetric", 6, 2, 9, 2, -1, 1))
sketch6.addConstraint(Sketcher.Constraint("Symmetric", 7, 2, 10, 2, -1, 1))
sketch6.addConstraint(Sketcher.Constraint("PointOnObject", 1, 2, -1))
sketch6.addConstraint(Sketcher.Constraint("PointOnObject", 7, 2, -1))
sketch6.addConstraint(Sketcher.Constraint("Parallel", 2, 5))
sketch6.addConstraint(Sketcher.Constraint("Parallel", 5, 7))
sketch6.addConstraint(Sketcher.Constraint("Parallel", 4, 8))
sketch6.addConstraint(Sketcher.Constraint("Parallel", 8, 11))
sketch6.addConstraint(Sketcher.Constraint("Vertical", 0, 2, 2, 2))
sketch6.addConstraint(Sketcher.Constraint("Angle", 1, Q("-60 deg")))
sketch6.addConstraint(Sketcher.Constraint("DistanceY", -1, 1, 0, 2, 183.0))
sketch6.addConstraint(Sketcher.Constraint("DistanceY", -1, 1, 6, 2, 176.0))
sketch6.addConstraint(Sketcher.Constraint("DistanceX", 0, 1, 0, 2, 211.310199))
sketch6.addConstraint(Sketcher.Constraint("DistanceX", 6, 2, 6, 1, 203.227295))
pocket5 = body.newObject("PartDesign::Pocket", "Pocket004")
pocket5.Profile = sketch6
pocket5.Type = "ThroughAll"
pocket5.Reversed = True

# Sketch on XY plane
sketch7 = body.newObject("Sketcher::SketchObject", "Sketch006")
sketch7.AttachmentSupport = (doc.getObject("XY_Plane"), [""])
sketch7.MapMode = "FlatFace"
sketch7.addGeometry(Part.Circle(V(118.4, 137.6, 0), V(0, 0, 1), 1), False)
sketch7.addGeometry(Part.Circle(V(178.3, 33.7, 0), V(0, 0, 1), 1), False)
sketch7.addGeometry(Part.Circle(V(178.1, -33.5, 0), V(0, 0, 1), 1), False)
sketch7.addGeometry(Part.Circle(V(118.1, -137.5, 0), V(0, 0, 1), 1), False)
sketch7.addGeometry(Part.Circle(V(60, -171, 0), V(0, 0, 1), 1), False)
sketch7.addGeometry(Part.Circle(V(-60, -171, 0), V(0, 0, 1), 1), False)
sketch7.addGeometry(Part.Circle(V(-118.4, -137.6, 0), V(0, 0, 1), 1), False)
sketch7.addGeometry(Part.Circle(V(-178.3, -33.7, 0), V(0, 0, 1), 1), False)
sketch7.addGeometry(Part.Circle(V(-60, 171, 0), V(0, 0, 1), 1), False)
sketch7.addGeometry(Part.Circle(V(60, 171, 0), V(0, 0, 1), 1), False)
sketch7.addConstraint(Sketcher.Constraint("Equal", 0, 1))
sketch7.addConstraint(Sketcher.Constraint("Equal", 1, 2))
sketch7.addConstraint(Sketcher.Constraint("Equal", 2, 3))
sketch7.addConstraint(Sketcher.Constraint("Equal", 3, 4))
sketch7.addConstraint(Sketcher.Constraint("Equal", 4, 5))
sketch7.addConstraint(Sketcher.Constraint("Equal", 5, 6))
sketch7.addConstraint(Sketcher.Constraint("Equal", 6, 7))
sketch7.addConstraint(Sketcher.Constraint("Equal", 7, 8))
sketch7.addConstraint(Sketcher.Constraint("Equal", 8, 9))
sketch7.addConstraint(Sketcher.Constraint("Symmetric", 0, 3, 6, 3, -1, 1))
sketch7.addConstraint(Sketcher.Constraint("Symmetric", 1, 3, 7, 3, -1, 1))
sketch7.addConstraint(Sketcher.Constraint("Symmetric", 4, 3, 8, 3, -1, 1))
sketch7.addConstraint(Sketcher.Constraint("Symmetric", 5, 3, 9, 3, -1, 1))
sketch7.addConstraint(Sketcher.Constraint("Symmetric", 4, 3, 5, 3, -2))
sketch7.addConstraint(Sketcher.Constraint("Diameter", 0, 2.0))
sketch7.addConstraint(Sketcher.Constraint("DistanceX", -1, 1, 4, 3, 60.0))
sketch7.addConstraint(Sketcher.Constraint("DistanceY", 4, 3, -1, 1, 171.0))
sketch7.addConstraint(Sketcher.Constraint("DistanceX", 3, 3, 2, 3, 60.0))
sketch7.addConstraint(Sketcher.Constraint("DistanceY", -1, 1, 0, 3, 137.610699))
sketch7.addConstraint(Sketcher.Constraint("DistanceX", -1, 1, 0, 3, 118.350219))
sketch7.addConstraint(Sketcher.Constraint("DistanceX", -1, 1, 1, 3, 178.349471))
sketch7.addConstraint(Sketcher.Constraint("DistanceY", 3, 3, 2, 3, 103.923048))
sketch7.addConstraint(Sketcher.Constraint("DistanceY", 3, 3, 1, 3, 171.150471))
sketch7.addConstraint(Sketcher.Constraint("DistanceY", -1, 1, 1, 3, 33.688947))
sketch7.addConstraint(Sketcher.Constraint("DistanceX", -1, 1, 2, 3, 178.090344))
sketch7.setExpression("Constraints[14]", "Params.sketch7_diameter")
pocket6 = body.newObject("PartDesign::Pocket", "Pocket005")
pocket6.Profile = sketch7
pocket6.Type = "ThroughAll"
pocket6.Reversed = True

doc.recompute()
